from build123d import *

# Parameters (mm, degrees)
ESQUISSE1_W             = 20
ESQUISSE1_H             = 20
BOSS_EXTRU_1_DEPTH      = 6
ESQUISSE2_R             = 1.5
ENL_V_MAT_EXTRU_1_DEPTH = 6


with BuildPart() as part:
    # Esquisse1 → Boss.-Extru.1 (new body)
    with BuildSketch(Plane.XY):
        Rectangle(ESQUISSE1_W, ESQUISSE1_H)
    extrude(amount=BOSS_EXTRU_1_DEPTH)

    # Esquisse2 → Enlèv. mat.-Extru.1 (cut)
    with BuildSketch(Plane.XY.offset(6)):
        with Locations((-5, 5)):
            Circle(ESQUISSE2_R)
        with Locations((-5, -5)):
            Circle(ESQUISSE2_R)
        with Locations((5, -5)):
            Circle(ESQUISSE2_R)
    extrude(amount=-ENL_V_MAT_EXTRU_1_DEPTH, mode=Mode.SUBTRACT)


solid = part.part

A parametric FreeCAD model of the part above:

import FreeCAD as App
import Part
import Sketcher

V = App.Vector

doc = App.newDocument("Part")
params = doc.addObject("Spreadsheet::Sheet", "Params")
for row, (alias, value) in enumerate([
    ("sketch1_width", "20 mm"),
    ("pad1_length", "6 mm"),
    ("sketch2_diameter", "3 mm"),
    ("pocket1_length", "6 mm"),
], start=1):
    params.set(f"A{row}", alias)
    params.set(f"B{row}", "=" + value)
    params.setAlias(f"B{row}", alias)

body = doc.addObject("PartDesign::Body", "Body")

# Sketch on XY plane
sketch1 = body.newObject("Sketcher::SketchObject", "Sketch")
sketch1.AttachmentSupport = (doc.getObject("XY_Plane"), [""])
sketch1.MapMode = "FlatFace"
sketch1.addGeometry([
    Part.LineSegment(V(-10, 10, 0), V(-10, -10, 0)),
    Part.LineSegment(V(-10, -10, 0), V(10, -10, 0)),
    Part.LineSegment(V(10, -10, 0), V(10, 10, 0)),
    Part.LineSegment(V(10, 10, 0), V(-10, 10, 0)),
], False)
sketch1.addConstraint([
    Sketcher.Constraint("Coincident", 0, 2, 1, 1),
    Sketcher.Constraint("Coincident", 1, 2, 2, 1),
    Sketcher.Constraint("Coincident", 2, 2, 3, 1),
    Sketcher.Constraint("Coincident", 3, 2, 0, 1),
    Sketcher.Constraint("Vertical", 0),
    Sketcher.Constraint("Horizontal", 1),
    Sketcher.Constraint("Vertical", 2),
    Sketcher.Constraint("Horizontal", 3),
    Sketcher.Constraint("Symmetric", 0, 2, 2, 2, -1, 1),
    Sketcher.Constraint("Equal", 3, 0),
    Sketcher.Constraint("DistanceX", 1, 1, 1, 2, 20.0),
])
sketch1.setExpression("Constraints[10]", "Params.sketch1_width")
pad1 = body.newObject("PartDesign::Pad", "Pad")
pad1.Profile = sketch1
pad1.setExpression("Length", "Params.pad1_length")

# Sketch on XY plane
sketch2 = body.newObject("Sketcher::SketchObject", "Sketch001")
sketch2.AttachmentSupport = (doc.getObject("XY_Plane"), [""])
sketch2.MapMode = "FlatFace"
sketch2.AttachmentOffset = App.Placement(V(0, 0, 6), App.Rotation())
sketch2.addGeometry([
    Part.Circle(V(-5, 5, 0), V(0, 0, 1), 1.5),
    Part.Circle(V(-5, -5, 0), V(0, 0, 1), 1.5),
    Part.Circle(V(5, -5, 0), V(0, 0, 1), 1.5),
], False)
sketch2.addConstraint([
    Sketcher.Constraint("Equal", 0, 1),
    Sketcher.Constraint("Equal", 1, 2),
    Sketcher.Constraint("Symmetric", 0, 3, 2, 3, -1, 1),
    Sketcher.Constraint("Symmetric", 1, 3, 2, 3, -2),
    Sketcher.Constraint("Diameter", 0, 3.0),
    Sketcher.Constraint("DistanceX", 0, 3, -1, 1, 5.0),
    Sketcher.Constraint("DistanceY", -1, 1, 0, 3, 5.0),
])
sketch2.setExpression("Constraints[4]", "Params.sketch2_diameter")
pocket1 = body.newObject("PartDesign::Pocket", "Pocket")
pocket1.Profile = sketch2
pocket1.setExpression("Length", "Params.pocket1_length")

doc.recompute()
